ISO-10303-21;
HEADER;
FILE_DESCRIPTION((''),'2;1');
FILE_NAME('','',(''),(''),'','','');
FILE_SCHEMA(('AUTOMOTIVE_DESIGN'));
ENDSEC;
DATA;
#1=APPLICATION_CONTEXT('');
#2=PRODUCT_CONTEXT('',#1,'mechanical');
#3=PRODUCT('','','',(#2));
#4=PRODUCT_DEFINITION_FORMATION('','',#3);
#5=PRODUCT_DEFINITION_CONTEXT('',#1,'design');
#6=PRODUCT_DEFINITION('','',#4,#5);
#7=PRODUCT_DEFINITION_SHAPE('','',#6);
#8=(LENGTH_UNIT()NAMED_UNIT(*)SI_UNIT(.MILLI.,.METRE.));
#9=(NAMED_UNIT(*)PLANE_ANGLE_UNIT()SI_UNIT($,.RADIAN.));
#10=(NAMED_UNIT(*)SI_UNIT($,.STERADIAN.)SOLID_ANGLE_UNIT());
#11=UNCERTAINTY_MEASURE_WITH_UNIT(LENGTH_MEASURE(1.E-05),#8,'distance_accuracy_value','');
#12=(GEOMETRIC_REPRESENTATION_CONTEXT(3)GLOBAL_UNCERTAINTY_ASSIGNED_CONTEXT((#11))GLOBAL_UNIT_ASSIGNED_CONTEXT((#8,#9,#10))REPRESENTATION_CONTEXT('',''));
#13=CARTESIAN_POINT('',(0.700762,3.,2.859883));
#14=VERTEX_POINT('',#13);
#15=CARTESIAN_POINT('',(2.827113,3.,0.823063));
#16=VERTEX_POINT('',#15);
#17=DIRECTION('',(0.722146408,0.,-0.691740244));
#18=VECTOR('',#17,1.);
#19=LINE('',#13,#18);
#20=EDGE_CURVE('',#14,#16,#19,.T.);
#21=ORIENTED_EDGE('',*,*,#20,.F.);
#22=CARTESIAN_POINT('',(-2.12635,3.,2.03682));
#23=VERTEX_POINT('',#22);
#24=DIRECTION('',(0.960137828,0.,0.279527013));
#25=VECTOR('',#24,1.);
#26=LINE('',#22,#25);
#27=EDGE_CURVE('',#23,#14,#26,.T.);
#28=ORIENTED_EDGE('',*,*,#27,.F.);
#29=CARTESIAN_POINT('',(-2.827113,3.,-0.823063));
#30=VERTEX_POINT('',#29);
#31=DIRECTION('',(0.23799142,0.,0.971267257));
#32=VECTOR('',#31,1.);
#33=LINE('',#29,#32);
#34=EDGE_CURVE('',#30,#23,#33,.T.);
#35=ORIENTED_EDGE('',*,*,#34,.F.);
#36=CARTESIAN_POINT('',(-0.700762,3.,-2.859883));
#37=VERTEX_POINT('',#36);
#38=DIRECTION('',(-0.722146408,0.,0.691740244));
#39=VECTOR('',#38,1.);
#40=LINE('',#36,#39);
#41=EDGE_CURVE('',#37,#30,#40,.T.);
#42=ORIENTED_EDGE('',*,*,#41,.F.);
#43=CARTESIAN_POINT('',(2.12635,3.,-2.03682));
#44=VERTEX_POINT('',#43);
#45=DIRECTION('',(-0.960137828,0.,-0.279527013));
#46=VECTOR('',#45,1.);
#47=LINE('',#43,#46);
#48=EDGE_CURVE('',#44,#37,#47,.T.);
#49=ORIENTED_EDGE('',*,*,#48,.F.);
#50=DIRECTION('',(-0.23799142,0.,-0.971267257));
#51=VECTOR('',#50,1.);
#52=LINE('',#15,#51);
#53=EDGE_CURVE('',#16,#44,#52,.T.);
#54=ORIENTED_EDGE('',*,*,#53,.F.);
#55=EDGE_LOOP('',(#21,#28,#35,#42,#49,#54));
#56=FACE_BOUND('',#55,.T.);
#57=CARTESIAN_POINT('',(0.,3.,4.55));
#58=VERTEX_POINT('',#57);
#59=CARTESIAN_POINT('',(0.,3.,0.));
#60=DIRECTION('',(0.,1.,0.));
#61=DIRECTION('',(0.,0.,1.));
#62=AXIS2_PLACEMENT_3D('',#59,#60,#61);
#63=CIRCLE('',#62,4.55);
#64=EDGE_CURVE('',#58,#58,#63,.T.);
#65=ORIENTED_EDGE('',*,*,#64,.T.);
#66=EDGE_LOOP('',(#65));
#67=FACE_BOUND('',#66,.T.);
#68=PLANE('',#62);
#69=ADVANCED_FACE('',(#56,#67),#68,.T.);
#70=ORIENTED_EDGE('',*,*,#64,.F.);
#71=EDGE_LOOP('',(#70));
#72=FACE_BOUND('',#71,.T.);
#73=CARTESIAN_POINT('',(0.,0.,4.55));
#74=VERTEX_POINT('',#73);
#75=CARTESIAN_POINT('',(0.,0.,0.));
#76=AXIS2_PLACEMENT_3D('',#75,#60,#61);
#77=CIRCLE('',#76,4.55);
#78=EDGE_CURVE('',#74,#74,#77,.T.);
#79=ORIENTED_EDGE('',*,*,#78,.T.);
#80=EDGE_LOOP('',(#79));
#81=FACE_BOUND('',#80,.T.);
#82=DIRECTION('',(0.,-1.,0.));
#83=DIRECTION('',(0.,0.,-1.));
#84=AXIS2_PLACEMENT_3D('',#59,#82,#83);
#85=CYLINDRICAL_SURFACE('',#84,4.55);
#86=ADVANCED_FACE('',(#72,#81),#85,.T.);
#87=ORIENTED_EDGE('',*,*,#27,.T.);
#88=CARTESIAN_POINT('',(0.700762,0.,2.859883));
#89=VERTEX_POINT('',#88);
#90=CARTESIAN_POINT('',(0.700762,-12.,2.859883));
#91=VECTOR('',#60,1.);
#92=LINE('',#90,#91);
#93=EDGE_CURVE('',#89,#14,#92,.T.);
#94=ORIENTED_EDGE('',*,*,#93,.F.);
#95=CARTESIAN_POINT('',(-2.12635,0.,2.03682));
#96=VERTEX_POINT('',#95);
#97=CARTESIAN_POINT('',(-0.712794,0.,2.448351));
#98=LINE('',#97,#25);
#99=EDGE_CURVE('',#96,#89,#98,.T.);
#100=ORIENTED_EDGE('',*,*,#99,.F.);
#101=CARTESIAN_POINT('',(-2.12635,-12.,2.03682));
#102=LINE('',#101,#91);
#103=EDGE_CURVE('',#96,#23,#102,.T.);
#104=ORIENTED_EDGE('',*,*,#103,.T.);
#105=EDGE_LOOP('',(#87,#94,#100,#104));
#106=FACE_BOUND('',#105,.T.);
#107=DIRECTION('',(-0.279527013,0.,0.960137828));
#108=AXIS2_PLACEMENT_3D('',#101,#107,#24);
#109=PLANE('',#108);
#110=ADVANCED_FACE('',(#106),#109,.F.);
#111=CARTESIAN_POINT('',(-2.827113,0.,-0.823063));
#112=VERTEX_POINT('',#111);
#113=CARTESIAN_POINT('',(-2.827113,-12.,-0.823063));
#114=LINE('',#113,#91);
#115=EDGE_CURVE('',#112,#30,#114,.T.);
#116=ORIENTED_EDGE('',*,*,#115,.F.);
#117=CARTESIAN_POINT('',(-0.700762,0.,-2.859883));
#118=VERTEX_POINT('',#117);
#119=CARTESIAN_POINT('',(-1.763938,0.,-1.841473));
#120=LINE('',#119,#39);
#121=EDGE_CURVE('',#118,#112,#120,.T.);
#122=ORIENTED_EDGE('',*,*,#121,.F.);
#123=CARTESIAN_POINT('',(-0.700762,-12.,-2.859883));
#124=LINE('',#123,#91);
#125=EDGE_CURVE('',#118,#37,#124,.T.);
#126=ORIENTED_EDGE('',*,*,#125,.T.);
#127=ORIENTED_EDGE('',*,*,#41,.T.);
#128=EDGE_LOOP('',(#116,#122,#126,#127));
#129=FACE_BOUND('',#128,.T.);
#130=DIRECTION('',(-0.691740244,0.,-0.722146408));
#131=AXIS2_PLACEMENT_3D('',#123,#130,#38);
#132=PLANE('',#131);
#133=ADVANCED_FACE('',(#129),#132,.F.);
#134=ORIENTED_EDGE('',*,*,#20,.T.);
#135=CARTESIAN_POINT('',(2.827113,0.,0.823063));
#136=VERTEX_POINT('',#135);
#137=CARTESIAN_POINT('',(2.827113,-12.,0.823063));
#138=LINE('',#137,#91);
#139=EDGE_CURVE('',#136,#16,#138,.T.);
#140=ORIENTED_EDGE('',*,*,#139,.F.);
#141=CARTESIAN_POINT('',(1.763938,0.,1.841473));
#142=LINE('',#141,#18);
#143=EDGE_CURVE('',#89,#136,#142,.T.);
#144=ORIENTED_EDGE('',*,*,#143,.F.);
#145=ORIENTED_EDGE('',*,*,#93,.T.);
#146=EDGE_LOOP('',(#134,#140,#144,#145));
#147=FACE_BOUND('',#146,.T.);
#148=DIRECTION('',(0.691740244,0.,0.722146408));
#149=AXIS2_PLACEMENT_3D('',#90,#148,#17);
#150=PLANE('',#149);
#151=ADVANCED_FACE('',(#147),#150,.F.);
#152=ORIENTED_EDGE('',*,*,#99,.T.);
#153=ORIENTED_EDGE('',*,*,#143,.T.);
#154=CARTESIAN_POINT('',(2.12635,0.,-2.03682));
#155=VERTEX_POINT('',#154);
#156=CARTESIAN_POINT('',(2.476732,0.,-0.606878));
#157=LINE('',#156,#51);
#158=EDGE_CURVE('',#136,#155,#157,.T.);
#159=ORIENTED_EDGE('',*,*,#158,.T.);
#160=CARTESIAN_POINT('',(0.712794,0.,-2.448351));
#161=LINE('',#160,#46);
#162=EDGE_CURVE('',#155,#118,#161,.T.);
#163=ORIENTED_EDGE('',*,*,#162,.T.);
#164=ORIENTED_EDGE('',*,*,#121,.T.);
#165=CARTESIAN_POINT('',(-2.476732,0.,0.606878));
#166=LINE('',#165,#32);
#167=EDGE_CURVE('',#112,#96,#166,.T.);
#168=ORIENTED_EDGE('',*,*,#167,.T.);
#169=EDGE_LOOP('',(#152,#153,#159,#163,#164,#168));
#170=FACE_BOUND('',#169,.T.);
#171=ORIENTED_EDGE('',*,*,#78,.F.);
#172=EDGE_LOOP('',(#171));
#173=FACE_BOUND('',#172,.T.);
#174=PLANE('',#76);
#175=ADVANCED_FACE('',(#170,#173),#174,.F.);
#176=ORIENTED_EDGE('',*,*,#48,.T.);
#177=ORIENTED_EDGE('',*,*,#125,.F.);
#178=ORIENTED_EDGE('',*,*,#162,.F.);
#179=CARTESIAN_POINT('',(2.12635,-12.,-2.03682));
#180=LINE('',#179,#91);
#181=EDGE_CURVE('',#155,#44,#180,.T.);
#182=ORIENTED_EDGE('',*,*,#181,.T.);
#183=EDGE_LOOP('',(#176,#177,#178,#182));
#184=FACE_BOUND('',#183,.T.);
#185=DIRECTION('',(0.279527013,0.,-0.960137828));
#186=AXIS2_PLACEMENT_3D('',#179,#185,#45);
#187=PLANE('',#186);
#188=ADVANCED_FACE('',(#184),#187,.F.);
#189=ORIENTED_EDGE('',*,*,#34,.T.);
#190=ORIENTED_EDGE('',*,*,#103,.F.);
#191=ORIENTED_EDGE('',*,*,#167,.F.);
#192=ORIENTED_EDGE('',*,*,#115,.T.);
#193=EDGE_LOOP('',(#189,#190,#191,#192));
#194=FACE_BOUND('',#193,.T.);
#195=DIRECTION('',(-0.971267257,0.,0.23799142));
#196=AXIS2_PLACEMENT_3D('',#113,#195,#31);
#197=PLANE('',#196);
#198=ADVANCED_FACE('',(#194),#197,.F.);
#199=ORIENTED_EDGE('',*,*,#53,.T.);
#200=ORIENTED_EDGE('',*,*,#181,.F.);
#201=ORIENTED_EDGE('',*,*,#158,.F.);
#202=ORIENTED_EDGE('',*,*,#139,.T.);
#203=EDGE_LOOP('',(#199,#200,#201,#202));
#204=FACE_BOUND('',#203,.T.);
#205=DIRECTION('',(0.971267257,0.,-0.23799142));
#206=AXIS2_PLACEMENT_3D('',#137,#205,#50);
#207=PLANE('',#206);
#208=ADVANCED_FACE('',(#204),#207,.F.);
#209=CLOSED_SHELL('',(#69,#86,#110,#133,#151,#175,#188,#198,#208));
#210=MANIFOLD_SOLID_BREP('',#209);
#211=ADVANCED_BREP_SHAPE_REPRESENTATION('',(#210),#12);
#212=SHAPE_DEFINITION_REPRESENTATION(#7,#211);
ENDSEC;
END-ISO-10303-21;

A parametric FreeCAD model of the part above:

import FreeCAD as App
import Part
import Sketcher
from FreeCAD import Vector


def add_polygon(sketch, points):
    """Adds a closed chain of lines whose ends are joined by coincident constraints."""
    first, n = sketch.GeometryCount, len(points)
    for a, b in zip(points, points[1:] + points[:1]):
        sketch.addGeometry(Part.LineSegment(App.Vector(*a, 0), App.Vector(*b, 0)), False)
    for i in range(n):
        sketch.addConstraint(Sketcher.Constraint("Coincident", first + i, 2, first + (i + 1) % n, 1))

doc = App.newDocument("Part")
body = doc.addObject("PartDesign::Body", "Body")

# Sketch on XZ plane
sketch1 = body.newObject("Sketcher::SketchObject", "Sketch")
sketch1.AttachmentSupport = (doc.getObject("XZ_Plane"), [""])
sketch1.MapMode = "FlatFace"
sketch1.addGeometry(Part.Circle(Vector(0, 0, 0), Vector(0, 0, 1), 4.5), False)
sketch1.addConstraint([
    Sketcher.Constraint("Coincident", 0, 3, -1, 1),
    Sketcher.Constraint("Diameter", 0, 9.1),
])
pad1 = body.newObject("PartDesign::Pad", "Pad")
pad1.Profile = sketch1
pad1.Length = 3
pad1.Reversed = True

# Sketch on XZ plane
sketch2 = body.newObject("Sketcher::SketchObject", "Sketch001")
sketch2.AttachmentSupport = (doc.getObject("XZ_Plane"), [""])
sketch2.MapMode = "FlatFace"
sketch2.AttachmentOffset = App.Placement(Vector(0, 0, -3), App.Rotation())
add_polygon(sketch2, [(-2.1, 2), (0.7, 2.9), (2.8, 0.8), (2.1, -2), (-0.7, -2.9), (-2.8, -0.8)])  # lines 0-5
sketch2.addConstraint([
    Sketcher.Constraint("Symmetric", 0, 2, 3, 2, -1, 1),
    Sketcher.Constraint("Symmetric", 1, 2, 4, 2, -1, 1),
    Sketcher.Constraint("Symmetric", 2, 2, 5, 2, -1, 1),
    Sketcher.Constraint("Equal", 0, 1),
    Sketcher.Constraint("Equal", 1, 2),
    Sketcher.Constraint("DistanceX", 5, 2, 2, 2, 4.252701),
    Sketcher.Constraint("DistanceY", 2, 2, -1, 1, 2.03682),
    Sketcher.Constraint("DistanceX", 0, 2, 1, 2, 2.12635),
    Sketcher.Constraint("DistanceY", 1, 2, 0, 2, 2.03682),
])
pocket1 = body.newObject("PartDesign::Pocket", "Pocket")
pocket1.Profile = sketch2
pocket1.Length = 15
pocket1.Reversed = True

doc.recompute()
